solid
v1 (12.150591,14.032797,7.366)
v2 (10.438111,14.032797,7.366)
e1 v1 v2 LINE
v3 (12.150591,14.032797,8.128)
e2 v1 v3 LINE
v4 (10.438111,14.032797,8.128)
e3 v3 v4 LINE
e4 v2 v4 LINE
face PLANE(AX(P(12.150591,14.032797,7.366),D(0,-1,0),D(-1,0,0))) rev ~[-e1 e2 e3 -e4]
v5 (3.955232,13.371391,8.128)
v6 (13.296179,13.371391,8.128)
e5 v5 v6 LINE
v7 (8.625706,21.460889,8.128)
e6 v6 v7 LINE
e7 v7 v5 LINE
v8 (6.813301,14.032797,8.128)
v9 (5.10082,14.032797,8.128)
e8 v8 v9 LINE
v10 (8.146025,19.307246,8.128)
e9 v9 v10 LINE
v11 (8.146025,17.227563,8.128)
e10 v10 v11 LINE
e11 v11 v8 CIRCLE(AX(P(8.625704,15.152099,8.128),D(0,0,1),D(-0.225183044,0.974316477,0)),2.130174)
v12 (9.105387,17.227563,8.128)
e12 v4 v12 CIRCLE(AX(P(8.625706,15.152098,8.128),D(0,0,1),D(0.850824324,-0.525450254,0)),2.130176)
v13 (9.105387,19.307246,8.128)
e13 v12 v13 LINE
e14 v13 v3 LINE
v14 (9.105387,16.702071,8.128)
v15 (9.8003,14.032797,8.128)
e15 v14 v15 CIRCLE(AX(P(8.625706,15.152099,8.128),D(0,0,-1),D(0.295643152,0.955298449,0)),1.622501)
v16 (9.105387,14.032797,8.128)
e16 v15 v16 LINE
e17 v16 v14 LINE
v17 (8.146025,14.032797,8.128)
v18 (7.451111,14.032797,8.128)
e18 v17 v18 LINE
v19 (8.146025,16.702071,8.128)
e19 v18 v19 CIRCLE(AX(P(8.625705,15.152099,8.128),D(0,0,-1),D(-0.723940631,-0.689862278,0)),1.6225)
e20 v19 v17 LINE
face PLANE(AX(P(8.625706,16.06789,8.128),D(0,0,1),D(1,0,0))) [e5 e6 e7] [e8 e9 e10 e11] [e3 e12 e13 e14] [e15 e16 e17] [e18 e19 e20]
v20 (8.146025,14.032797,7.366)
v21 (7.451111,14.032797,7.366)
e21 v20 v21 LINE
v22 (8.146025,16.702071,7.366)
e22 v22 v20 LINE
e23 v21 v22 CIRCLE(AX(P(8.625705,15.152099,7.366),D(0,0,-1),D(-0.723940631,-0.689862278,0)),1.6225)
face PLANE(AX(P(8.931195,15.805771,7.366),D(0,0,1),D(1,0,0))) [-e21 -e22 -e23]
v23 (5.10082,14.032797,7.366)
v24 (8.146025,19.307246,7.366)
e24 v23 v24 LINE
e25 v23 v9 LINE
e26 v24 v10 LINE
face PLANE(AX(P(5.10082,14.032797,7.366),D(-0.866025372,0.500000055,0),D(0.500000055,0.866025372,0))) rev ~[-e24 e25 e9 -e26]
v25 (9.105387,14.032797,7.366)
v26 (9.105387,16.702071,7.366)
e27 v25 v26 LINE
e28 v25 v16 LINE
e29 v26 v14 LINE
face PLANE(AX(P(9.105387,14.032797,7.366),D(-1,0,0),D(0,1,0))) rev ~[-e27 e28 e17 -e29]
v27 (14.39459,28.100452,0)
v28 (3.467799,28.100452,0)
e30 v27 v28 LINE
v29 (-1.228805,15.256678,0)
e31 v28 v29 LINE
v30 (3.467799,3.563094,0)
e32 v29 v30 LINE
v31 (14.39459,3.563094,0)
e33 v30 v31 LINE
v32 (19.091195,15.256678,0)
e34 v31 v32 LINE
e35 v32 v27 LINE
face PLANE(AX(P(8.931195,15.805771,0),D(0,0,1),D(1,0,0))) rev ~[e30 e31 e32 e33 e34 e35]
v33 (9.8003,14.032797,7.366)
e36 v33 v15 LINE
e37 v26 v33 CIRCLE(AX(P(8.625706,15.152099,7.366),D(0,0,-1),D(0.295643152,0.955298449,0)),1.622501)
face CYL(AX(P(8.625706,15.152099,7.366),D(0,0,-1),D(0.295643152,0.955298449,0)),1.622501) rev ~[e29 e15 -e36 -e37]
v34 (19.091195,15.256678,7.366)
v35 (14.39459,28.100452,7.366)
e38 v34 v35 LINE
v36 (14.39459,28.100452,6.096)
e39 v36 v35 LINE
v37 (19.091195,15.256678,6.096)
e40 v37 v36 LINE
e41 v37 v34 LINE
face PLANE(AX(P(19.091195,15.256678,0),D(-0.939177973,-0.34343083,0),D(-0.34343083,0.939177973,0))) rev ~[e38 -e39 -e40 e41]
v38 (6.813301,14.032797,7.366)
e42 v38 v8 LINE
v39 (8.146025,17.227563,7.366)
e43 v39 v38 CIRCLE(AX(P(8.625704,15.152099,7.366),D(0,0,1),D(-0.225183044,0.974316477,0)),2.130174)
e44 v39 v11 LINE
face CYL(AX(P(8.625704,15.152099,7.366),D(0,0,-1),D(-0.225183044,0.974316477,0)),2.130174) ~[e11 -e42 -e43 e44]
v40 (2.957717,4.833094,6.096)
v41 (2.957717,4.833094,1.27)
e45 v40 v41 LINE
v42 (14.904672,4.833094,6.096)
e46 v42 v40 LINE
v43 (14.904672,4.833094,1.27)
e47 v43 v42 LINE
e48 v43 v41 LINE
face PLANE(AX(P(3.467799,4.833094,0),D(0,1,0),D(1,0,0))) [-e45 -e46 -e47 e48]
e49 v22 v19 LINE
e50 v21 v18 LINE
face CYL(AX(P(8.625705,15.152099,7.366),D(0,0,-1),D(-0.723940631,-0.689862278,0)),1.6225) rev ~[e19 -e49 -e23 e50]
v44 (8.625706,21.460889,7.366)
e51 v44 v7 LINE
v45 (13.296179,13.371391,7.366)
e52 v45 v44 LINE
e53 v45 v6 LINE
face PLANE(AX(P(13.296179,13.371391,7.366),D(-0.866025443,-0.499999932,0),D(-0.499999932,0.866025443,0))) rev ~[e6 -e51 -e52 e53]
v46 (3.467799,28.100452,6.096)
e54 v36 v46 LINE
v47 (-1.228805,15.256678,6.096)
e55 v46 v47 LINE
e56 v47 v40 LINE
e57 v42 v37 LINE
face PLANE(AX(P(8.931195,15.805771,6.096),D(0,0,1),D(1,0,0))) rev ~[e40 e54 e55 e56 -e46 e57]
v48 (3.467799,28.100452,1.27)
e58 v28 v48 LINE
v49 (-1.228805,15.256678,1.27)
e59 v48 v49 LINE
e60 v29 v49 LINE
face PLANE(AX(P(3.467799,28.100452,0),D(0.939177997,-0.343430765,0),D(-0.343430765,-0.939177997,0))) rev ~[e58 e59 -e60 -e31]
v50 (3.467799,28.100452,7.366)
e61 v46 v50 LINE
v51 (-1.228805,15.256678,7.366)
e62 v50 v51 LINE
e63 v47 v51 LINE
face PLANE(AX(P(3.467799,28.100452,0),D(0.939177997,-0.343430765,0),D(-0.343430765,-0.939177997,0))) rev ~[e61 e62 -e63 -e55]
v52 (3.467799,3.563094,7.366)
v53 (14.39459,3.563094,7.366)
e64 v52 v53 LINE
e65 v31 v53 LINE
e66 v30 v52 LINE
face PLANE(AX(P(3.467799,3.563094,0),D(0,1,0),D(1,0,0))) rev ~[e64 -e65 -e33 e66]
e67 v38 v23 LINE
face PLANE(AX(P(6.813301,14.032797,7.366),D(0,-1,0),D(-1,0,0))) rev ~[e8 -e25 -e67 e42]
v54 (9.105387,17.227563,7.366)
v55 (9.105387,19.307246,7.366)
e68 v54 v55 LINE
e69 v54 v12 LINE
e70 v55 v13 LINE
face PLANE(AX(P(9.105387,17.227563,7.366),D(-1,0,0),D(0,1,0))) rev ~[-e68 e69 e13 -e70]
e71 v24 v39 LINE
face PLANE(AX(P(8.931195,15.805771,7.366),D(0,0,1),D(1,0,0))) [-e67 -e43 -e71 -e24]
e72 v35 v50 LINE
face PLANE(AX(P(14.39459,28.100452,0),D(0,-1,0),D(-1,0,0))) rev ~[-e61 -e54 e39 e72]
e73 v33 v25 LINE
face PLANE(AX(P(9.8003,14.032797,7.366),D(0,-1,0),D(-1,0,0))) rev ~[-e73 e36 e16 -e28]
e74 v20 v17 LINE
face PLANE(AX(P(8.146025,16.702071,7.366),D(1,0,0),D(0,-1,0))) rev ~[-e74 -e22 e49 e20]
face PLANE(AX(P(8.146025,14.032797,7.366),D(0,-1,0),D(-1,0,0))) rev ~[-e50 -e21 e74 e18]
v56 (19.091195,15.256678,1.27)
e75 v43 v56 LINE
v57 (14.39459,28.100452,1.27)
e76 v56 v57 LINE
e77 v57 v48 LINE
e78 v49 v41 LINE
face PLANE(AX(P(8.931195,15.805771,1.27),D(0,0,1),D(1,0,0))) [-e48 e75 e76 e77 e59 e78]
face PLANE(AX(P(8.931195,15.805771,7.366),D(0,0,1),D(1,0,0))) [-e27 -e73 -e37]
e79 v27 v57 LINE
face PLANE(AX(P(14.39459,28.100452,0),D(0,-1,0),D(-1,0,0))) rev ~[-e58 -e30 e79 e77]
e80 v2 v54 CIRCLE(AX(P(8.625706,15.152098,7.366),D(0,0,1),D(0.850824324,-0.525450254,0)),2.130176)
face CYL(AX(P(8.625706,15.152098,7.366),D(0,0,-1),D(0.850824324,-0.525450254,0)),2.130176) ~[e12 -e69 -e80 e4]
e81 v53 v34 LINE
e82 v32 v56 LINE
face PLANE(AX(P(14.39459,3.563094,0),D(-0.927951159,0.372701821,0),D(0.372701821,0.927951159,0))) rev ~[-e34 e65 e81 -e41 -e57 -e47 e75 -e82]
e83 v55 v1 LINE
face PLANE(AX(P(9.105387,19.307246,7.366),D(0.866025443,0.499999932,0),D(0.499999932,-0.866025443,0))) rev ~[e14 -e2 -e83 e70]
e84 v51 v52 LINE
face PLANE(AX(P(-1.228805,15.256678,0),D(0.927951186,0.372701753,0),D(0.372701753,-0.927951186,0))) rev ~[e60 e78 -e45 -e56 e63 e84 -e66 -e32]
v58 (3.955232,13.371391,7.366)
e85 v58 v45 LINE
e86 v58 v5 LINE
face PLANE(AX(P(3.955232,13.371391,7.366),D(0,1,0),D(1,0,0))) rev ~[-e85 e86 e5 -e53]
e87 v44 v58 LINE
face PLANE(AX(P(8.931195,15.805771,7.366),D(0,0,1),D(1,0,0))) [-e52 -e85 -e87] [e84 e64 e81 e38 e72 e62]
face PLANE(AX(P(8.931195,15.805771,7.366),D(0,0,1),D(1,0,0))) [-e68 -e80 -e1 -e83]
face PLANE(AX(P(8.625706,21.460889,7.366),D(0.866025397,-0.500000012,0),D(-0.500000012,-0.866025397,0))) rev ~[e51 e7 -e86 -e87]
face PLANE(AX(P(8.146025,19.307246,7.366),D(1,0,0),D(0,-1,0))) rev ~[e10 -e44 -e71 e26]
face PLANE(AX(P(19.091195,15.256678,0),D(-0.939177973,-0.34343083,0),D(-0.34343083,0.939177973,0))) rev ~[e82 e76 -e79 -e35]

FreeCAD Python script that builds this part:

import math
import FreeCAD as App
import Part
import Sketcher
from FreeCAD import Vector
Q = App.Units.Quantity


def faces_at(feature, points):
    """Names of the faces that lie closest to the given points."""
    faces = feature.Shape.Faces
    near = lambda p: min(range(len(faces)), key=lambda i: faces[i].distToShape(Part.Vertex(*p))[0])
    return sorted({f"Face{near(p) + 1}" for p in points})


def add_polygon(sketch, points):
    """Adds a closed chain of lines whose ends are joined by coincident constraints."""
    first, n = sketch.GeometryCount, len(points)
    for a, b in zip(points, points[1:] + points[:1]):
        sketch.addGeometry(Part.LineSegment(App.Vector(*a, 0), App.Vector(*b, 0)), False)
    for i in range(n):
        sketch.addConstraint(Sketcher.Constraint("Coincident", first + i, 2, first + (i + 1) % n, 1))

doc = App.newDocument("Part")
body = doc.addObject("PartDesign::Body", "Body")

# Sketch on XY plane
sketch1 = body.newObject("Sketcher::SketchObject", "Sketch")
sketch1.AttachmentSupport = (doc.getObject("XY_Plane"), [""])
sketch1.MapMode = "FlatFace"
add_polygon(sketch1, [(14, 28), (3, 28), (-1, 15), (3, 4), (14, 4), (19, 15)])  # lines 0-5
sketch1.addConstraint(Sketcher.Constraint("Horizontal", 0))
sketch1.addConstraint(Sketcher.Constraint("Horizontal", 3))
sketch1.addConstraint(Sketcher.Constraint("Horizontal", 1, 2, 4, 2))
sketch1.addConstraint(Sketcher.Constraint("Vertical", 0, 2, 2, 2))
sketch1.addConstraint(Sketcher.Constraint("Vertical", 3, 2, 5, 2))
sketch1.addConstraint(Sketcher.Constraint("Equal", 2, 4))
sketch1.addConstraint(Sketcher.Constraint("DistanceX", 1, 2, 4, 2, Q("0.8 in")))
sketch1.addConstraint(Sketcher.Constraint("DistanceX", 0, 2, 0, 1, 10.926791))
sketch1.addConstraint(Sketcher.Constraint("DistanceX", -1, 1, 0, 2, 3.467799))
sketch1.addConstraint(Sketcher.Constraint("Distance", 1, 13.675548))
sketch1.addConstraint(Sketcher.Constraint("Distance", 4, 12.601508))
sketch1.addConstraint(Sketcher.Constraint("DistanceY", -1, 1, 1, 2, 15.256678))
pad1 = body.newObject("PartDesign::Pad", "Pad")
pad1.Profile = sketch1
pad1.Length = Q("0.29 in")
doc.recompute()

thickness = body.newObject("PartDesign::Thickness", "Thickness")
thickness.Base = (pad1, faces_at(pad1, [
    (8.931, 28.1, 3.683),
    (16.743, 21.679, 3.683),
    (16.743, 9.41, 3.683),
    (1.119, 21.679, 3.683),
    (1.119, 9.41, 3.683),
]))
thickness.Value = Q("0.05 in")
thickness.Reversed = True
thickness.Join = "Arc"

# Sketch on XY plane
sketch2 = body.newObject("Sketcher::SketchObject", "Sketch001")
sketch2.AttachmentSupport = (doc.getObject("XY_Plane"), [""])
sketch2.MapMode = "FlatFace"
sketch2.AttachmentOffset = App.Placement(Vector(0, 0, 0.29 * 25.4), App.Rotation())
add_polygon(sketch2, [(4, 13.4), (13.3, 13.4), (8.6, 21.5)])  # lines 0-2
sketch2.addGeometry(Part.LineSegment(Vector(8.1, 14, 0), Vector(7.5, 14, 0)), False)  # 3
sketch2.addGeometry(Part.ArcOfCircle(Part.Circle(Vector(8.6, 15.2, 0), Vector(0, 0, 1), 1.6), math.radians(107), math.radians(224)), False)  # 4
sketch2.addGeometry(Part.LineSegment(Vector(8.1, 16.7, 0), Vector(8.1, 14, 0)), False)  # 5
sketch2.addGeometry(Part.LineSegment(Vector(9.1, 14, 0), Vector(9.1, 16.7, 0)), False)  # 6
sketch2.addGeometry(Part.ArcOfCircle(Part.Circle(Vector(8.6, 15.2, 0), Vector(0, 0, 1), 1.6), math.radians(-44), math.radians(73)), False)  # 7
sketch2.addGeometry(Part.LineSegment(Vector(9.8, 14, 0), Vector(9.1, 14, 0)), False)  # 8
sketch2.addGeometry(Part.ArcOfCircle(Part.Circle(Vector(8.6, 15.2, 0), Vector(0, 0, 1), 2.1), math.radians(103), math.radians(212)), False)  # 9
sketch2.addGeometry(Part.LineSegment(Vector(6.8, 14, 0), Vector(5.1, 14, 0)), False)  # 10
sketch2.addGeometry(Part.LineSegment(Vector(5.1, 14, 0), Vector(8.1, 19.3, 0)), False)  # 11
sketch2.addGeometry(Part.LineSegment(Vector(8.1, 19.3, 0), Vector(8.1, 17.2, 0)), False)  # 12
sketch2.addGeometry(Part.LineSegment(Vector(9.1, 17.2, 0), Vector(9.1, 19.3, 0)), False)  # 13
sketch2.addGeometry(Part.LineSegment(Vector(9.1, 19.3, 0), Vector(12.2, 14, 0)), False)  # 14
sketch2.addGeometry(Part.LineSegment(Vector(12.2, 14, 0), Vector(10.4, 14, 0)), False)  # 15
sketch2.addGeometry(Part.ArcOfCircle(Part.Circle(Vector(8.6, 15.2, 0), Vector(0, 0, 1), 2.1), math.radians(-32), math.radians(77)), False)  # 16
sketch2.addConstraint(Sketcher.Constraint("Coincident", 3, 2, 4, 2))
sketch2.addConstraint(Sketcher.Constraint("Coincident", 4, 1, 5, 1))
sketch2.addConstraint(Sketcher.Constraint("Coincident", 5, 2, 3, 1))
sketch2.addConstraint(Sketcher.Constraint("Coincident", 6, 2, 7, 2))
sketch2.addConstraint(Sketcher.Constraint("Coincident", 7, 1, 8, 1))
sketch2.addConstraint(Sketcher.Constraint("Coincident", 8, 2, 6, 1))
sketch2.addConstraint(Sketcher.Constraint("Coincident", 9, 2, 10, 1))
sketch2.addConstraint(Sketcher.Constraint("Coincident", 10, 2, 11, 1))
sketch2.addConstraint(Sketcher.Constraint("Coincident", 11, 2, 12, 1))
sketch2.addConstraint(Sketcher.Constraint("Coincident", 12, 2, 9, 1))
sketch2.addConstraint(Sketcher.Constraint("Coincident", 13, 2, 14, 1))
sketch2.addConstraint(Sketcher.Constraint("Coincident", 14, 2, 15, 1))
sketch2.addConstraint(Sketcher.Constraint("Coincident", 15, 2, 16, 1))
sketch2.addConstraint(Sketcher.Constraint("Coincident", 16, 2, 13, 1))
sketch2.addConstraint(Sketcher.Constraint("Horizontal", 0))
sketch2.addConstraint(Sketcher.Constraint("Horizontal", 3))
sketch2.addConstraint(Sketcher.Constraint("Vertical", 5))
sketch2.addConstraint(Sketcher.Constraint("Vertical", 6))
sketch2.addConstraint(Sketcher.Constraint("Horizontal", 8))
sketch2.addConstraint(Sketcher.Constraint("Horizontal", 10))
sketch2.addConstraint(Sketcher.Constraint("Vertical", 12))
sketch2.addConstraint(Sketcher.Constraint("Vertical", 13))
sketch2.addConstraint(Sketcher.Constraint("Horizontal", 15))
sketch2.addConstraint(Sketcher.Constraint("Coincident", 7, 3, 4, 3))
sketch2.addConstraint(Sketcher.Constraint("Coincident", 9, 3, 4, 3))
sketch2.addConstraint(Sketcher.Constraint("Coincident", 16, 3, 4, 3))
sketch2.addConstraint(Sketcher.Constraint("Equal", 4, 7))
sketch2.addConstraint(Sketcher.Constraint("Equal", 9, 16))
sketch2.addConstraint(Sketcher.Constraint("Parallel", 2, 11))
sketch2.addConstraint(Sketcher.Constraint("Parallel", 1, 14))
sketch2.addConstraint(Sketcher.Constraint("Horizontal", 4, 1, 6, 2))
sketch2.addConstraint(Sketcher.Constraint("Horizontal", 5, 2, 7, 1))
sketch2.addConstraint(Sketcher.Constraint("Horizontal", 8, 2, 9, 2))
sketch2.addConstraint(Sketcher.Constraint("Horizontal", 11, 2, 13, 2))
sketch2.addConstraint(Sketcher.Constraint("Horizontal", 10, 2, 14, 2))
sketch2.addConstraint(Sketcher.Constraint("Horizontal", 12, 2, 16, 2))
sketch2.addConstraint(Sketcher.Constraint("Vertical", 16, 3, 1, 2))
sketch2.addConstraint(Sketcher.Constraint("Vertical", 5, 2, 11, 2))
sketch2.addConstraint(Sketcher.Constraint("Equal", 10, 15))
sketch2.addConstraint(Sketcher.Constraint("Angle", 1, Q("119.999995 deg")))
sketch2.addConstraint(Sketcher.Constraint("Radius", 4, 1.6225))
sketch2.addConstraint(Sketcher.Constraint("Radius", 9, 2.130174))
sketch2.addConstraint(Sketcher.Constraint("DistanceX", 10, 2, 10, 1, 1.712481))
sketch2.addConstraint(Sketcher.Constraint("DistanceY", -1, 1, 4, 3, 15.152099))
sketch2.addConstraint(Sketcher.Constraint("DistanceX", -1, 1, 7, 1, 9.8003))
sketch2.addConstraint(Sketcher.Constraint("DistanceX", -1, 1, 9, 2, 6.813301))
sketch2.addConstraint(Sketcher.Constraint("DistanceY", 0, 2, 1, 2, 8.089498))
sketch2.addConstraint(Sketcher.Constraint("Distance", 11, 6.090409))
sketch2.addConstraint(Sketcher.Constraint("DistanceY", -1, 1, 0, 2, 13.371391))
pad2 = body.newObject("PartDesign::Pad", "Pad001")
pad2.Profile = sketch2
pad2.Length = Q("0.03 in")

doc.recompute()
